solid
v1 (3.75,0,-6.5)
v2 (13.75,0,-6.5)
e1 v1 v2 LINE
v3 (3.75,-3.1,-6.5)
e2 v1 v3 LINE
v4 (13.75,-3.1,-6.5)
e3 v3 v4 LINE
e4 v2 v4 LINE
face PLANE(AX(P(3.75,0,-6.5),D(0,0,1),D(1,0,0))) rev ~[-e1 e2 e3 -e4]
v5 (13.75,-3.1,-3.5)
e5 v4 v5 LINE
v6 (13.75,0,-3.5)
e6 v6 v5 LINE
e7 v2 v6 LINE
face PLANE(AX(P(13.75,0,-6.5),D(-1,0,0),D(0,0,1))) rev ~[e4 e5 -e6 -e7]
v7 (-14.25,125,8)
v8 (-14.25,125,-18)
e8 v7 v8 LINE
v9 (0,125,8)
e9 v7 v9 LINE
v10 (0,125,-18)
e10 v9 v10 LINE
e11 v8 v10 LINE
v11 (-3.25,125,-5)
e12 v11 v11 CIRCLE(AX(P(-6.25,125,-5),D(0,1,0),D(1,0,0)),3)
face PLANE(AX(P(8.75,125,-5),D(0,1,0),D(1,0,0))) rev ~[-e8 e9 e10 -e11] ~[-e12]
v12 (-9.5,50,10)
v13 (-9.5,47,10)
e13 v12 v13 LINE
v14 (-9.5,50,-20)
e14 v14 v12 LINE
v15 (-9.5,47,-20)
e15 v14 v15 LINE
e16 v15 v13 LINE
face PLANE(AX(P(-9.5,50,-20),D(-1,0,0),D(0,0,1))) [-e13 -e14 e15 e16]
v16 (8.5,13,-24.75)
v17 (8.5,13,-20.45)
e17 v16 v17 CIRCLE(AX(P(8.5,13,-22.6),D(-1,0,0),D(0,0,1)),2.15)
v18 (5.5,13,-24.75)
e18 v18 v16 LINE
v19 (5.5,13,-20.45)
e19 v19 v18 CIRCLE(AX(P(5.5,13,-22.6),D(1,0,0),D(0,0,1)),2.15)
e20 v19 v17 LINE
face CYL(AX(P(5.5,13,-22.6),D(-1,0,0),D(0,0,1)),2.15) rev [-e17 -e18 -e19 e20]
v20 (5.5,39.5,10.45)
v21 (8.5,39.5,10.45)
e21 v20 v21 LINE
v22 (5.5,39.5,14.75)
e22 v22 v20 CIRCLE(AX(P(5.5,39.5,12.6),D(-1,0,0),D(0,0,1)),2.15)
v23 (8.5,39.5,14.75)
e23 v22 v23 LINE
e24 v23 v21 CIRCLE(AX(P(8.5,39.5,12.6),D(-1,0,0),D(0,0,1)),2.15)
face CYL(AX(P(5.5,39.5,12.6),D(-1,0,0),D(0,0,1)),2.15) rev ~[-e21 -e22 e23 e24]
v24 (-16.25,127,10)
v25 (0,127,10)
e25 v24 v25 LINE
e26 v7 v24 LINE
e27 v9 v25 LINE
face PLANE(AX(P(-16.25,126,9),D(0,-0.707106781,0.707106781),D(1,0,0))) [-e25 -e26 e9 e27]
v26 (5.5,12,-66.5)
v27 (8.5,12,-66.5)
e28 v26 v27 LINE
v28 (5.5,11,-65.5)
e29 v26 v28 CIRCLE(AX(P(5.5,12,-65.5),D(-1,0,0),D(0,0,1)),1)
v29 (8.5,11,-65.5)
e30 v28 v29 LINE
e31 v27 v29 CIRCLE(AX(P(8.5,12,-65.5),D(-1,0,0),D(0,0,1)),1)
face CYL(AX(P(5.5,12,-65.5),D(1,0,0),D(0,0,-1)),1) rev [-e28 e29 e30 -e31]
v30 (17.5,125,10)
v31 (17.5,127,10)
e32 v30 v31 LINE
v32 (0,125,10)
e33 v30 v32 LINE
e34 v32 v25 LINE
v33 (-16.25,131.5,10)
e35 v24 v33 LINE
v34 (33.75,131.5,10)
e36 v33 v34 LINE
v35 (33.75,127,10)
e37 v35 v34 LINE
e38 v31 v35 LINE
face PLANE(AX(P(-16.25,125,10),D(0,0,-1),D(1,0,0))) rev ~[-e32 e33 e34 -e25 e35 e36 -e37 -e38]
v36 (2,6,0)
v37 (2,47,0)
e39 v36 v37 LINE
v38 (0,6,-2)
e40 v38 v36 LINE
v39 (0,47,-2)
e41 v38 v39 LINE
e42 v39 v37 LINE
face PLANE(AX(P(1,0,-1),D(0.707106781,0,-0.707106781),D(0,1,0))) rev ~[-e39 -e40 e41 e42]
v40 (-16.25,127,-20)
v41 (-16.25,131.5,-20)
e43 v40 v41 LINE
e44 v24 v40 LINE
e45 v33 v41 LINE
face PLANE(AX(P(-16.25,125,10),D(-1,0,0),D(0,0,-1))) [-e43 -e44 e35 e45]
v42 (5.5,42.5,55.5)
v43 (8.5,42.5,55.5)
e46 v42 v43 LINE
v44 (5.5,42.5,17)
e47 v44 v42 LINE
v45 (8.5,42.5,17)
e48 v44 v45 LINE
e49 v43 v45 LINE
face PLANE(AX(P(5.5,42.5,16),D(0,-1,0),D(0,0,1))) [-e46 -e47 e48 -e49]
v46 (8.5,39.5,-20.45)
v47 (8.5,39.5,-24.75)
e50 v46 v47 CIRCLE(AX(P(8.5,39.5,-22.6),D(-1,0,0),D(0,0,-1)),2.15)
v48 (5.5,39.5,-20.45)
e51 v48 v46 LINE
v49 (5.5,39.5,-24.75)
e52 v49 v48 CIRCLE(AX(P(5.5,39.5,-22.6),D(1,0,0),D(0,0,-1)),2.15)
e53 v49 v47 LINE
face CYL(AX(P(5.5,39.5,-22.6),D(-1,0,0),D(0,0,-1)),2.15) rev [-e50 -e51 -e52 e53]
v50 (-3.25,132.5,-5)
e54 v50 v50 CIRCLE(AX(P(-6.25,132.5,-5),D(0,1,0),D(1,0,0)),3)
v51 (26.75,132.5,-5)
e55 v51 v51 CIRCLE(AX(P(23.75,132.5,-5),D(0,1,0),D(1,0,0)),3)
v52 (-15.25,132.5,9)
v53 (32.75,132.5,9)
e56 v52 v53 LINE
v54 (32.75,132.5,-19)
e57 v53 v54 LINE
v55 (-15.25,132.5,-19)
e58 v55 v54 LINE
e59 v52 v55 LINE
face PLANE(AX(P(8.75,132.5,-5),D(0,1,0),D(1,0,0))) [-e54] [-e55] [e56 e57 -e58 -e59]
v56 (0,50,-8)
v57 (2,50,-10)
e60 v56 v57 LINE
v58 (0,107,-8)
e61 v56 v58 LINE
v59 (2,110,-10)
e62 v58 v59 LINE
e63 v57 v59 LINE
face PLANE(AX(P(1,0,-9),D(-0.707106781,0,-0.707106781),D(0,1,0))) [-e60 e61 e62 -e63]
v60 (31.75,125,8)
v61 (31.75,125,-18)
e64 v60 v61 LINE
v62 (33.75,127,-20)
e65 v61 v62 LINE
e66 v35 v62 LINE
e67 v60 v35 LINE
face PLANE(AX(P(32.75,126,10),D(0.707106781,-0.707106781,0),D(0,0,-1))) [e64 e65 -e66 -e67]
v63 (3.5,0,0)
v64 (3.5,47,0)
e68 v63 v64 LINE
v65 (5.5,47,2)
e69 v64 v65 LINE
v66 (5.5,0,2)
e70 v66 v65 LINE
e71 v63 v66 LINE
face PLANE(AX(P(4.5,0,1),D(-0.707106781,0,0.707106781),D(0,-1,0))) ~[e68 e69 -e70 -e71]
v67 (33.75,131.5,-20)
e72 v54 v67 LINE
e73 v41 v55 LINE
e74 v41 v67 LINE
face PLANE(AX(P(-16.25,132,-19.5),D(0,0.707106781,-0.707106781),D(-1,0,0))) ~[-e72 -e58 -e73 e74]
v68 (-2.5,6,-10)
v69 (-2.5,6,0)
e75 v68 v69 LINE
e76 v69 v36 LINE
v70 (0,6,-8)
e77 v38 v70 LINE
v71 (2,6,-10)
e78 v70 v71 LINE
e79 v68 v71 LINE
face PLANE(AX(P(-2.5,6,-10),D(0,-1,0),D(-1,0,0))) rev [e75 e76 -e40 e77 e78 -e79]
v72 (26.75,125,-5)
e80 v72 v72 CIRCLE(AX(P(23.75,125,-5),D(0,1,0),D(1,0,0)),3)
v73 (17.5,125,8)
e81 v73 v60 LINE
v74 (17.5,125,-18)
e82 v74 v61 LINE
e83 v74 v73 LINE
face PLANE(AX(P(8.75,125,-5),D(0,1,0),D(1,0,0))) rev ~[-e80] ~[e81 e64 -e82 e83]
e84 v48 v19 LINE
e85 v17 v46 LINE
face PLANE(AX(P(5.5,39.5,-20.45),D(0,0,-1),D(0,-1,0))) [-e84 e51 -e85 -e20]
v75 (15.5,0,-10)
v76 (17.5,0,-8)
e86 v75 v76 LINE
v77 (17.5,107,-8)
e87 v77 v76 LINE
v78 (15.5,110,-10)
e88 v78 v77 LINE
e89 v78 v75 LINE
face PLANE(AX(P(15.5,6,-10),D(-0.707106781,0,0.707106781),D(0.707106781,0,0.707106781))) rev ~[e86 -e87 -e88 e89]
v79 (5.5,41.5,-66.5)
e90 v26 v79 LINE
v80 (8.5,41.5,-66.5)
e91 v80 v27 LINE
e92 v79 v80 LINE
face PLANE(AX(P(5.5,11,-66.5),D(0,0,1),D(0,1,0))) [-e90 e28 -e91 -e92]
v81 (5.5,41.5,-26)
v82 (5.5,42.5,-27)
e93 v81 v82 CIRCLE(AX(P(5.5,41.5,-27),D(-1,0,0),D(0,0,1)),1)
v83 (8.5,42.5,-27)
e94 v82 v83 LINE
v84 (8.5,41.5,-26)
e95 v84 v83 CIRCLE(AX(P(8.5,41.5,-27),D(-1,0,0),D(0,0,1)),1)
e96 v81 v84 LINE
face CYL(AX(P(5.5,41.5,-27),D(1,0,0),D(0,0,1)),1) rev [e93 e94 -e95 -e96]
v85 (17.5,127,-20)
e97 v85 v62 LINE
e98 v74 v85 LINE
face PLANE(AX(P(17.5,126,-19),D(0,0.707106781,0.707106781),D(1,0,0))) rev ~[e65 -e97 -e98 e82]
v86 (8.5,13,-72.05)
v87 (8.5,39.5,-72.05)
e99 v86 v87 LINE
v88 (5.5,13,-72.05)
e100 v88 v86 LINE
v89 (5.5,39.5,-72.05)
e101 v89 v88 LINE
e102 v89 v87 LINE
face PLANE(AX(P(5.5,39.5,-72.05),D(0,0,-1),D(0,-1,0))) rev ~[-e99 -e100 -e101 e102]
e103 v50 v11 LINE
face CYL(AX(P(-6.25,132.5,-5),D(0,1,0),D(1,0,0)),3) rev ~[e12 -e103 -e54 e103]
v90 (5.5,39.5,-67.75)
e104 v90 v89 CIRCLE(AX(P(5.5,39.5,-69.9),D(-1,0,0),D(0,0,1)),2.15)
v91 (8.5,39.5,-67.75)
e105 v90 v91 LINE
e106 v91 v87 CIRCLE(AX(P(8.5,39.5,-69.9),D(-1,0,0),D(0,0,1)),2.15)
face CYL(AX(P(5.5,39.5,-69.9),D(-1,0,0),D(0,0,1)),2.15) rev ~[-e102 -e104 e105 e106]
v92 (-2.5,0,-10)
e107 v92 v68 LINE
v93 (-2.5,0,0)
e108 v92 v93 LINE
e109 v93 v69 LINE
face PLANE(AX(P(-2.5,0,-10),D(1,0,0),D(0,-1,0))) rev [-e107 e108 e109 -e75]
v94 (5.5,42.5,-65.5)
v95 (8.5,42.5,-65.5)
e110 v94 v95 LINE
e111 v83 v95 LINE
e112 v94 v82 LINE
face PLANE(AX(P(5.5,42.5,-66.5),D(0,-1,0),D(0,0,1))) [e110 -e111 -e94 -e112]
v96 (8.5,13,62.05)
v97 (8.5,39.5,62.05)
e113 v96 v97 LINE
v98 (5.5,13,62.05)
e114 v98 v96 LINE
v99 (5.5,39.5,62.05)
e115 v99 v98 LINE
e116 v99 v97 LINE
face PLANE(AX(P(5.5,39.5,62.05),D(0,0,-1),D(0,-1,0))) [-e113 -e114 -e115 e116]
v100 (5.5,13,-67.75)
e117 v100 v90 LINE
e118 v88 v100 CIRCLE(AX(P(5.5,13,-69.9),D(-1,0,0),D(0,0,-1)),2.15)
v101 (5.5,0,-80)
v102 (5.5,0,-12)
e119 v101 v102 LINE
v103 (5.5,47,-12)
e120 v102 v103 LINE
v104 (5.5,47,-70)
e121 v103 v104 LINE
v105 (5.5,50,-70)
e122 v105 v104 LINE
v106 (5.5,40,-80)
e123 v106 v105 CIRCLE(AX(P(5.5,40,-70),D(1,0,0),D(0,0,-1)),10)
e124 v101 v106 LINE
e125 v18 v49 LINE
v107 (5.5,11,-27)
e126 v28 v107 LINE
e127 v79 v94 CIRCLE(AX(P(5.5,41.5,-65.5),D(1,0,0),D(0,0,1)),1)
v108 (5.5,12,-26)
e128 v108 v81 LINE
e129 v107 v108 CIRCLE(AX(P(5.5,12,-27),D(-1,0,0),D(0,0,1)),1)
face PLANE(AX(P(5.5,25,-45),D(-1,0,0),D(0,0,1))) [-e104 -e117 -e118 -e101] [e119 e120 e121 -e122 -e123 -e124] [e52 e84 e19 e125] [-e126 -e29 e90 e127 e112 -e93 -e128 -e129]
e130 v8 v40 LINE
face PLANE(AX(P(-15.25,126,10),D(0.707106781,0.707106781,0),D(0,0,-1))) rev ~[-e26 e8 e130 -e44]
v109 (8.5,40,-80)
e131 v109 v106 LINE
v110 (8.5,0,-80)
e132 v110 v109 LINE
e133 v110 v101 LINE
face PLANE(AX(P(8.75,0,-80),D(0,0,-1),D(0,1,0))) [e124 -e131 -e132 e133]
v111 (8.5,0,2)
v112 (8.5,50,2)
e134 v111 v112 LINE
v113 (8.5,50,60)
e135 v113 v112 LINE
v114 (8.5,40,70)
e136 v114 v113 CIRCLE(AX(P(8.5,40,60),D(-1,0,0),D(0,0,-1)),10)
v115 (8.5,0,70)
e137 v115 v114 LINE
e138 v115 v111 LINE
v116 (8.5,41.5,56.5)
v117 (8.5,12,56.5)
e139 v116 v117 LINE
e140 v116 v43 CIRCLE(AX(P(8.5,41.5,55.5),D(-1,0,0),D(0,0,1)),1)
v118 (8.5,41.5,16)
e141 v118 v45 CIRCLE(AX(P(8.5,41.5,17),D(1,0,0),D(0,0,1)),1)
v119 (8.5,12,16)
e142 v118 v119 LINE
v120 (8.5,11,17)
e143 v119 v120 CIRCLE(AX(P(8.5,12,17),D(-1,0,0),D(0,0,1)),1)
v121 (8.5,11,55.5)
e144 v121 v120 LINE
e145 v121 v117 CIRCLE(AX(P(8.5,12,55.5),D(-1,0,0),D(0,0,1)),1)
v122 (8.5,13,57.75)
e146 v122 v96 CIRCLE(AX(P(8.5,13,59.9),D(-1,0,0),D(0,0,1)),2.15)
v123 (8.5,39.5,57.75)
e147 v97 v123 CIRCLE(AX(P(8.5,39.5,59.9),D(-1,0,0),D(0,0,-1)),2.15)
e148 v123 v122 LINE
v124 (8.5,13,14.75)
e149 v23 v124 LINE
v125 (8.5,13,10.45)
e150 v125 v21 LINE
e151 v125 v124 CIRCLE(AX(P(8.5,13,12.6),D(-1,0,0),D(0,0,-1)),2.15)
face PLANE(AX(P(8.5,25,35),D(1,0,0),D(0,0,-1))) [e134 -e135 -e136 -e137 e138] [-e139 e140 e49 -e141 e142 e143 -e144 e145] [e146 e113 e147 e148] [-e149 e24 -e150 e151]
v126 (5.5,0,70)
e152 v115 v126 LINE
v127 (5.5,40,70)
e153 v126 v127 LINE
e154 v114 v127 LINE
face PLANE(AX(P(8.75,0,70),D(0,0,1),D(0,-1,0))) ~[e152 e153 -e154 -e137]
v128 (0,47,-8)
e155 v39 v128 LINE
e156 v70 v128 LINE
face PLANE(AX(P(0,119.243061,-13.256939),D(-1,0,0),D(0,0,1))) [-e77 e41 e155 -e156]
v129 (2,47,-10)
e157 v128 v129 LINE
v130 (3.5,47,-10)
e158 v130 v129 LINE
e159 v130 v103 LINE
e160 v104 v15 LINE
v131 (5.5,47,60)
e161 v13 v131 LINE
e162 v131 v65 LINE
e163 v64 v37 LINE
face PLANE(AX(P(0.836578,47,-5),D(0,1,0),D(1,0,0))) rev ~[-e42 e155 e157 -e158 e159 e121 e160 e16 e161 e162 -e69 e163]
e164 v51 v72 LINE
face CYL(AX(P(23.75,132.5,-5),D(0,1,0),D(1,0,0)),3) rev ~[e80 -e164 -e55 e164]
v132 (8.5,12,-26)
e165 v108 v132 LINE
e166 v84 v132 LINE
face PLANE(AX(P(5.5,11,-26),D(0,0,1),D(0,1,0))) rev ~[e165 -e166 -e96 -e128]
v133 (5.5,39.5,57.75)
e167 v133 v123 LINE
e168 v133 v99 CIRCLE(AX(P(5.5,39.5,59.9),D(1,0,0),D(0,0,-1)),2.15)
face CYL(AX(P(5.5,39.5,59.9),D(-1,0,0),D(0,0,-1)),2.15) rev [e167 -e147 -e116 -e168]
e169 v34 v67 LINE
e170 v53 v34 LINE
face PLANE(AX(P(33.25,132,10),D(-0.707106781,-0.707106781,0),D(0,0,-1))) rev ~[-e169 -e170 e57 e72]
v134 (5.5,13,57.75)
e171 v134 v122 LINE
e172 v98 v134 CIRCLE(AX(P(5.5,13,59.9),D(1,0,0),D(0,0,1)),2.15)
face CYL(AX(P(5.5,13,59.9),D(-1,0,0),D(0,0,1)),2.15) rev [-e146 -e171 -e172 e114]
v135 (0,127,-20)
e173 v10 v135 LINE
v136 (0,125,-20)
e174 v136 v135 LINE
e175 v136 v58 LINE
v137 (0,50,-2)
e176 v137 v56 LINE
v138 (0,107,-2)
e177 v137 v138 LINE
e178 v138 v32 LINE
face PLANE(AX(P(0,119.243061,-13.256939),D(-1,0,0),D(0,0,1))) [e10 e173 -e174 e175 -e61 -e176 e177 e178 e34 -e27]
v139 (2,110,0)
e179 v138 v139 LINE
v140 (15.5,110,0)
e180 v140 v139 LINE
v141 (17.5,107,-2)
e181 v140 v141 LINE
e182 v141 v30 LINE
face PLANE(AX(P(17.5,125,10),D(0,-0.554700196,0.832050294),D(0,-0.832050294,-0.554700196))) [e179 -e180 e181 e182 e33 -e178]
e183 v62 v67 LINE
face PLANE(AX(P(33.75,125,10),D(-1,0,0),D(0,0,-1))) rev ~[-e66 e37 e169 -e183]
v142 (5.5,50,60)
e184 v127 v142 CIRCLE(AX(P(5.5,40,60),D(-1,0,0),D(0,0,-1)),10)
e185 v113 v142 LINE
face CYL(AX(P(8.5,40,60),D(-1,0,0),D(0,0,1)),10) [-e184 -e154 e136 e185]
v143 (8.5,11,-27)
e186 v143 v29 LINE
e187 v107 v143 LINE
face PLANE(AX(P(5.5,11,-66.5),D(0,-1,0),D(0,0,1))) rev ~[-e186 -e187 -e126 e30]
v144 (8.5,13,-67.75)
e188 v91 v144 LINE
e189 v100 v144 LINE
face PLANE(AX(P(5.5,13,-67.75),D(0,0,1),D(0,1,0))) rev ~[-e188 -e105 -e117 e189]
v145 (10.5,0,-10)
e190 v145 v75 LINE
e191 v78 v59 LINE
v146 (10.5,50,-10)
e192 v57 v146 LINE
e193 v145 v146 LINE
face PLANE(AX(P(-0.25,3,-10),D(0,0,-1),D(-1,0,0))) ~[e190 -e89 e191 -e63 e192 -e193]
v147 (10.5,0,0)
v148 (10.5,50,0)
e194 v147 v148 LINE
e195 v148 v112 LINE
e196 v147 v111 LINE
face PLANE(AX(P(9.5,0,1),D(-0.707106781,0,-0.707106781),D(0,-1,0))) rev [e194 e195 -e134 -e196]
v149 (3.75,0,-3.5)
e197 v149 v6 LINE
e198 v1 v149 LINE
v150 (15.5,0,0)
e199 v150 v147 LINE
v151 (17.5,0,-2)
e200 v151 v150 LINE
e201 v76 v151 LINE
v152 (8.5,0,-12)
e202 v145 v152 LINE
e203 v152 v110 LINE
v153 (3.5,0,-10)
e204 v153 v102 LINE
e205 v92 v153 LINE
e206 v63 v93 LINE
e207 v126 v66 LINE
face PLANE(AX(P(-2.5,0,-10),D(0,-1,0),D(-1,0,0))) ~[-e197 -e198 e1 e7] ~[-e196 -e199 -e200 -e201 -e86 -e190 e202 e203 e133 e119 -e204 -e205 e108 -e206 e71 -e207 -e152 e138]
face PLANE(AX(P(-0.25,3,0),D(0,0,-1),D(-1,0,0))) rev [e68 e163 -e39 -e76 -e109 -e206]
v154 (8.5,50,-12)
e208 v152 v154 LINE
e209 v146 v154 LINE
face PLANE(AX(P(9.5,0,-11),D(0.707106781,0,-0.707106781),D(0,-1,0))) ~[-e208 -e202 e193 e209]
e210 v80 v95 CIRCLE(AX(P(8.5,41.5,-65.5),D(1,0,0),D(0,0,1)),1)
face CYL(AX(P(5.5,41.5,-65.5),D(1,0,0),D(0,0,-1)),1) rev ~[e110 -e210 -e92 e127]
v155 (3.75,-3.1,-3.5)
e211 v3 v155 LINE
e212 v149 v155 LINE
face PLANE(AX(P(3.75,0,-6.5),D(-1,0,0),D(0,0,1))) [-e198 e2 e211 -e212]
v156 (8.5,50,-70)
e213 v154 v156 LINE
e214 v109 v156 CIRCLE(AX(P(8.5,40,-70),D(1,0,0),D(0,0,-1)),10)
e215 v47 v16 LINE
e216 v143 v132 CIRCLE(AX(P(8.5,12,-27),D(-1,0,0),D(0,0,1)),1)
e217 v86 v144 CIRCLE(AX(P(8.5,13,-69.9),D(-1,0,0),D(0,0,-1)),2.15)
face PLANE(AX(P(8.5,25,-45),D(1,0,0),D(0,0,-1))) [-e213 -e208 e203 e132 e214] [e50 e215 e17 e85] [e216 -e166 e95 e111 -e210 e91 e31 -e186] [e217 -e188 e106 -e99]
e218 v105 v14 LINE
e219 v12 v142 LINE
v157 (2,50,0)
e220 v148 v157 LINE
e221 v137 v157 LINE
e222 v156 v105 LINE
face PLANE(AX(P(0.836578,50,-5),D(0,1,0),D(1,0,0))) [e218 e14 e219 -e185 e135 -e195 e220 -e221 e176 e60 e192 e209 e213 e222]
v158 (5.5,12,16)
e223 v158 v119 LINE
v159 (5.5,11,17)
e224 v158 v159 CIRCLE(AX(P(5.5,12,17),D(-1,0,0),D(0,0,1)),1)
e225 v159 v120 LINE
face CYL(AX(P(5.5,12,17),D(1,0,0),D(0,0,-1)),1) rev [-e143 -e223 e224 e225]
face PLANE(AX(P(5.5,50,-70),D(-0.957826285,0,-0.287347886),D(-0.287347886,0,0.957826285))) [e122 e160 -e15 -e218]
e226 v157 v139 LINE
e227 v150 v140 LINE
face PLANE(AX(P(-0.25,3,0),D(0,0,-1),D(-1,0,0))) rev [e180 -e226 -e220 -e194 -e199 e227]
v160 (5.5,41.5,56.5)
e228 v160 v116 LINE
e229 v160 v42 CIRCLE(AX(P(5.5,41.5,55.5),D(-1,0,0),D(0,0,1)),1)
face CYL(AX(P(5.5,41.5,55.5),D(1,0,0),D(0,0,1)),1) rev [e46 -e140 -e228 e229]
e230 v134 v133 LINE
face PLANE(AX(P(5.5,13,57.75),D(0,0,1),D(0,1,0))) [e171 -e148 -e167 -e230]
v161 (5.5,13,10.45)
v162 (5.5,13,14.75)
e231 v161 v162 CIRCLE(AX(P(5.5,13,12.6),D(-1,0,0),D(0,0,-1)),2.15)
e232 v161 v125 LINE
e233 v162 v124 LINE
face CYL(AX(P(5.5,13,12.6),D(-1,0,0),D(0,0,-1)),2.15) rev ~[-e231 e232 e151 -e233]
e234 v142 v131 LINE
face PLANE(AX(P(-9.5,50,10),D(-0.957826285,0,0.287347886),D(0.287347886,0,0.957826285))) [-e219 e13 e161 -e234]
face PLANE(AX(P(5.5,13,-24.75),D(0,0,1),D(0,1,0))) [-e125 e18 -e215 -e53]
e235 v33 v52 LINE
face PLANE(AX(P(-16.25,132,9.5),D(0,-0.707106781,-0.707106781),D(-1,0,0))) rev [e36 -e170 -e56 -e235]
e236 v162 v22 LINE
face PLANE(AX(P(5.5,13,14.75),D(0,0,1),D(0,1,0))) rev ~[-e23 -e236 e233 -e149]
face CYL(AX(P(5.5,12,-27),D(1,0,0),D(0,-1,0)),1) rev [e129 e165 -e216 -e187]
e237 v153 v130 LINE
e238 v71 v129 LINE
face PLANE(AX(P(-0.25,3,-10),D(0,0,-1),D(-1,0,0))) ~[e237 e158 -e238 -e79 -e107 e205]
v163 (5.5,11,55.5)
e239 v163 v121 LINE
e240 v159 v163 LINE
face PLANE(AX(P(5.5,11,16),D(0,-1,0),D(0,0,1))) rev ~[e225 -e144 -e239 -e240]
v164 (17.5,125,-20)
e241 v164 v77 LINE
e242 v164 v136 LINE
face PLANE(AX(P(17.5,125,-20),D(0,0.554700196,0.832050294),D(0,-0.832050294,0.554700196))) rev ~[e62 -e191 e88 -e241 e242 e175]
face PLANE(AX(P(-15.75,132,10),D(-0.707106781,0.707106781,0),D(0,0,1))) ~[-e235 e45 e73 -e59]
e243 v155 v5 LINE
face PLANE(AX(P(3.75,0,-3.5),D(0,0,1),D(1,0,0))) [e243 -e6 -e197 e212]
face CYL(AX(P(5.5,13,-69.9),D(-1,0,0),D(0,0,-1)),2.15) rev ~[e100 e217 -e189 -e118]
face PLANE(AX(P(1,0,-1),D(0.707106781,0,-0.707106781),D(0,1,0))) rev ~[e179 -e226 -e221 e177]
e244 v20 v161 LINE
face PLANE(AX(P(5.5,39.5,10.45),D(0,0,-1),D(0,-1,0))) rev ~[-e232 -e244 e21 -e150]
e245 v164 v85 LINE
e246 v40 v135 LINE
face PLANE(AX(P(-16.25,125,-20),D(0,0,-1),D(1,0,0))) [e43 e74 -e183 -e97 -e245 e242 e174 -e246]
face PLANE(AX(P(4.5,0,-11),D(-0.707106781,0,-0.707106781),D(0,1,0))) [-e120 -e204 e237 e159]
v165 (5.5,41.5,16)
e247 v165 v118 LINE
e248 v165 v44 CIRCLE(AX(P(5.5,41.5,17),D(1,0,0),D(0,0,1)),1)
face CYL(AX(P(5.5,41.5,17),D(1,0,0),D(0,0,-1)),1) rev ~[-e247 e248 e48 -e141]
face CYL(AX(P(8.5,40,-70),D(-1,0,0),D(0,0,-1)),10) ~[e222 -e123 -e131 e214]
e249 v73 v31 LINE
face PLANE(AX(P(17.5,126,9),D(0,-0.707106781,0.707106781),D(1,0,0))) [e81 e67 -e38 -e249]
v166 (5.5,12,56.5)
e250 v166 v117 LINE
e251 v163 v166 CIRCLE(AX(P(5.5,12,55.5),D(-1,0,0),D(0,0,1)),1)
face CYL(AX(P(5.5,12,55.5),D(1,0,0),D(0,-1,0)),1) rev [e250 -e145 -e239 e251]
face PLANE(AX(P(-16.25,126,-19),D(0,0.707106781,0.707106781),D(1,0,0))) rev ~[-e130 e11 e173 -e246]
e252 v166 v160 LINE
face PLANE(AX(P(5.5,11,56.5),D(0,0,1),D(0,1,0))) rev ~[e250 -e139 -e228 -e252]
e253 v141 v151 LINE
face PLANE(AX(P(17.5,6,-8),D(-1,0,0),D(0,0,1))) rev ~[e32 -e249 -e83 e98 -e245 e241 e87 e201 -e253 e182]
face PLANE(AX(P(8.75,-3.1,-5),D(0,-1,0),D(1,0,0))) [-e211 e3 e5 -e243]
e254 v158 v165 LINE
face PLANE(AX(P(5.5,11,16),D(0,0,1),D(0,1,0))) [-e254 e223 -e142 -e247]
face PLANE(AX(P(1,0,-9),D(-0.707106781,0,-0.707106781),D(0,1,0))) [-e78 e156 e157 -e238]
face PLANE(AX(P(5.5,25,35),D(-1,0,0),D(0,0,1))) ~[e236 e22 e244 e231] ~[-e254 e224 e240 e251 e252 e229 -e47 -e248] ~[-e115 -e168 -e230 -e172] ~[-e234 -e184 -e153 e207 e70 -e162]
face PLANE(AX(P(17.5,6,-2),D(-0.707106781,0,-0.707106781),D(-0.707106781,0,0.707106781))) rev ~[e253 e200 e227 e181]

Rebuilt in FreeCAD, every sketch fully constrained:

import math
import FreeCAD as App
import Part
import Sketcher

V = App.Vector


def edges_at(feature, points):
    """Names of the edges that pass closest to the given points."""
    edges = feature.Shape.Edges
    near = lambda p: min(range(len(edges)), key=lambda i: edges[i].distToShape(Part.Vertex(*p))[0])
    return sorted({f"Edge{near(p) + 1}" for p in points})

doc = App.newDocument("Part")
body = doc.addObject("PartDesign::Body", "Body")

sketch1 = body.newObject("Sketcher::SketchObject", "Sketch")
sketch1.AttachmentSupport = (doc.getObject("XZ_Plane"), [""])
sketch1.MapMode = "FlatFace"
sketch1.addGeometry([
    Part.LineSegment(V(0, -10, 0), V(0, 0, 0)),
    Part.LineSegment(V(0, 0, 0), V(17.5, 0, 0)),
    Part.LineSegment(V(17.5, 0, 0), V(17.5, -10, 0)),
    Part.LineSegment(V(17.5, -10, 0), V(0, -10, 0)),
], False)
sketch1.addConstraint([
    Sketcher.Constraint("Coincident", 0, 2, 1, 1),
    Sketcher.Constraint("Coincident", 1, 2, 2, 1),
    Sketcher.Constraint("Coincident", 2, 2, 3, 1),
    Sketcher.Constraint("Coincident", 3, 2, 0, 1),
    Sketcher.Constraint("Vertical", 0),
    Sketcher.Constraint("Horizontal", 1),
    Sketcher.Constraint("Vertical", 2),
    Sketcher.Constraint("Horizontal", 3),
    Sketcher.Constraint("Coincident", 0, 2, -1, 1),
    Sketcher.Constraint("DistanceY", 0, 1, 0, 2, 10.0),
    Sketcher.Constraint("DistanceX", 1, 1, 1, 2, 17.5),
])
pad1 = body.newObject("PartDesign::Pad", "Pad")
pad1.Profile = sketch1
pad1.Length = 125
pad1.Reversed = True

sketch2 = body.newObject("Sketcher::SketchObject", "Sketch001")
sketch2.AttachmentSupport = (doc.getObject("XZ_Plane"), [""])
sketch2.MapMode = "FlatFace"
sketch2.AttachmentOffset = App.Placement(V(0, 0, -125), App.Rotation())
sketch2.addGeometry([
    Part.LineSegment(V(-16.25, -20, 0), V(-16.25, 10, 0)),
    Part.LineSegment(V(-16.25, 10, 0), V(33.75, 10, 0)),
    Part.LineSegment(V(33.75, 10, 0), V(33.75, -20, 0)),
    Part.LineSegment(V(33.75, -20, 0), V(-16.25, -20, 0)),
], False)
sketch2.addConstraint([
    Sketcher.Constraint("Coincident", 0, 2, 1, 1),
    Sketcher.Constraint("Coincident", 1, 2, 2, 1),
    Sketcher.Constraint("Coincident", 2, 2, 3, 1),
    Sketcher.Constraint("Coincident", 3, 2, 0, 1),
    Sketcher.Constraint("Vertical", 0),
    Sketcher.Constraint("Horizontal", 1),
    Sketcher.Constraint("Vertical", 2),
    Sketcher.Constraint("Horizontal", 3),
    Sketcher.Constraint("DistanceX", 1, 1, 1, 2, 50.0),
    Sketcher.Constraint("DistanceY", 0, 1, 0, 2, 30.0),
    Sketcher.Constraint("DistanceY", -1, 1, 0, 2, 10.0),
    Sketcher.Constraint("DistanceX", 0, 2, -1, 1, 16.25),
])
pad2 = body.newObject("PartDesign::Pad", "Pad001")
pad2.Profile = sketch2
pad2.Length = 7.5
pad2.Reversed = True
doc.recompute()

chamfer = body.newObject("PartDesign::Chamfer", "Chamfer")
chamfer.Base = (pad2, edges_at(pad2, [
    (33.75, 132.5, -5),
    (8.75, 132.5, -20),
    (-16.25, 132.5, -5),
    (8.75, 132.5, 10),
]))
chamfer.Size = 1

sketch3 = body.newObject("Sketcher::SketchObject", "Sketch002")
sketch3.AttachmentSupport = (doc.getObject("XZ_Plane"), [""])
sketch3.MapMode = "FlatFace"
sketch3.AttachmentOffset = App.Placement(V(0, 0, -132.5), App.Rotation())
sketch3.addGeometry([
    Part.Circle(V(23.75, -5, 0), V(0, 0, 1), 3),
    Part.Circle(V(-6.25, -5, 0), V(0, 0, 1), 3),
], False)
sketch3.addConstraint([
    Sketcher.Constraint("Equal", 0, 1),
    Sketcher.Constraint("Horizontal", 0, 3, 1, 3),
    Sketcher.Constraint("Diameter", 0, 6.0),
    Sketcher.Constraint("DistanceY", 0, 3, -1, 1, 5.0),
    Sketcher.Constraint("DistanceX", 1, 3, 0, 3, 30.0),
    Sketcher.Constraint("DistanceX", -1, 1, 0, 3, 23.75),
])
pocket1 = body.newObject("PartDesign::Pocket", "Pocket")
pocket1.Profile = sketch3
pocket1.Length = 10
pocket1.Reversed = True

sketch4 = body.newObject("Sketcher::SketchObject", "Sketch003")
sketch4.AttachmentSupport = (doc.getObject("YZ_Plane"), [""])
sketch4.MapMode = "FlatFace"
sketch4.AttachmentOffset = App.Placement(V(0, 0, 17.5), App.Rotation())
sketch4.addGeometry([
    Part.LineSegment(V(125, -20, 0), V(125, -10, 0)),
    Part.LineSegment(V(125, -10, 0), V(110, -10, 0)),
    Part.LineSegment(V(110, -10, 0), V(125, -20, 0)),
    Part.LineSegment(V(125, 0, 0), V(125, 10, 0)),
    Part.LineSegment(V(125, 10, 0), V(110, 0, 0)),
    Part.LineSegment(V(110, 0, 0), V(125, 0, 0)),
], False)
sketch4.addConstraint([
    Sketcher.Constraint("Coincident", 0, 2, 1, 1),
    Sketcher.Constraint("Coincident", 1, 2, 2, 1),
    Sketcher.Constraint("Coincident", 2, 2, 0, 1),
    Sketcher.Constraint("Coincident", 3, 2, 4, 1),
    Sketcher.Constraint("Coincident", 4, 2, 5, 1),
    Sketcher.Constraint("Coincident", 5, 2, 3, 1),
    Sketcher.Constraint("Vertical", 0),
    Sketcher.Constraint("Horizontal", 1),
    Sketcher.Constraint("Vertical", 3),
    Sketcher.Constraint("Horizontal", 5),
    Sketcher.Constraint("Symmetric", 0, 2, 3, 2, -1),
    Sketcher.Constraint("PointOnObject", 4, 2, -1),
    Sketcher.Constraint("Vertical", 1, 2, 4, 2),
    Sketcher.Constraint("Equal", 0, 3),
    Sketcher.Constraint("DistanceX", 1, 2, 1, 1, 15.0),
    Sketcher.Constraint("DistanceY", 0, 1, 0, 2, 10.0),
    Sketcher.Constraint("DistanceX", -1, 1, 0, 2, 125.0),
])
pad3 = body.newObject("PartDesign::Pad", "Pad002")
pad3.Profile = sketch4
pad3.Length = 17.5
pad3.Reversed = True
doc.recompute()

chamfer2 = body.newObject("PartDesign::Chamfer", "Chamfer001")
chamfer2.Base = (pad3, edges_at(pad3, [
    (-8.125, 125, -20),
    (33.75, 125, -5),
    (-16.25, 125, -5),
    (-8.125, 125, 10),
    (25.625, 125, -20),
    (25.625, 125, 10),
]))
chamfer2.Size = 2
doc.recompute()

chamfer3 = body.newObject("PartDesign::Chamfer", "Chamfer002")
chamfer3.Base = (chamfer2, edges_at(chamfer2, [
    (0, 55, -10),
    (17.5, 55, -10),
    (17.5, 55, 0),
    (0, 55, 0),
]))
chamfer3.Size = 2

sketch5 = body.newObject("Sketcher::SketchObject", "Sketch004")
sketch5.AttachmentSupport = (doc.getObject("XZ_Plane"), [""])
sketch5.MapMode = "FlatFace"
sketch5.addGeometry([
    Part.LineSegment(V(3.75, -3.5, 0), V(3.75, -6.5, 0)),
    Part.LineSegment(V(3.75, -6.5, 0), V(13.75, -6.5, 0)),
    Part.LineSegment(V(13.75, -6.5, 0), V(13.75, -3.5, 0)),
    Part.LineSegment(V(13.75, -3.5, 0), V(3.75, -3.5, 0)),
], False)
sketch5.addConstraint([
    Sketcher.Constraint("Coincident", 0, 2, 1, 1),
    Sketcher.Constraint("Coincident", 1, 2, 2, 1),
    Sketcher.Constraint("Coincident", 2, 2, 3, 1),
    Sketcher.Constraint("Coincident", 3, 2, 0, 1),
    Sketcher.Constraint("Vertical", 0),
    Sketcher.Constraint("Horizontal", 1),
    Sketcher.Constraint("Vertical", 2),
    Sketcher.Constraint("Horizontal", 3),
    Sketcher.Constraint("DistanceX", 1, 1, 1, 2, 10.0),
    Sketcher.Constraint("DistanceY", 0, 2, 0, 1, 3.0),
    Sketcher.Constraint("DistanceY", 0, 2, -1, 1, 6.5),
    Sketcher.Constraint("DistanceX", -1, 1, 0, 2, 3.75),
])
pad4 = body.newObject("PartDesign::Pad", "Pad003")
pad4.Profile = sketch5
pad4.Length = 3.1

sketch6 = body.newObject("Sketcher::SketchObject", "Sketch005")
sketch6.AttachmentSupport = (doc.getObject("YZ_Plane"), [""])
sketch6.MapMode = "FlatFace"
sketch6.AttachmentOffset = App.Placement(V(0, 0, 8.75), App.Rotation())
sketch6.addGeometry([
    Part.LineSegment(V(50, -80, 0), V(0, -80, 0)),
    Part.LineSegment(V(0, -80, 0), V(0, -10, 0)),
    Part.LineSegment(V(0, -10, 0), V(50, -10, 0)),
    Part.LineSegment(V(50, -10, 0), V(50, -80, 0)),
], False)
sketch6.addConstraint([
    Sketcher.Constraint("Coincident", 0, 2, 1, 1),
    Sketcher.Constraint("Coincident", 1, 2, 2, 1),
    Sketcher.Constraint("Coincident", 2, 2, 3, 1),
    Sketcher.Constraint("Coincident", 3, 2, 0, 1),
    Sketcher.Constraint("Horizontal", 0),
    Sketcher.Constraint("Vertical", 1),
    Sketcher.Constraint("Horizontal", 2),
    Sketcher.Constraint("Vertical", 3),
    Sketcher.Constraint("PointOnObject", 0, 2, -2),
    Sketcher.Constraint("DistanceX", 0, 2, 0, 1, 50.0),
    Sketcher.Constraint("DistanceY", 1, 1, 1, 2, 70.0),
    Sketcher.Constraint("DistanceY", 0, 2, -1, 1, 80.0),
])
pad5 = body.newObject("PartDesign::Pad", "Pad004")
pad5.Profile = sketch6
pad5.Length = 3.25
pad5.Reversed = True
doc.recompute()

datumplane = body.newObject("PartDesign::Plane", "DatumPlane")
datumplane.AttachmentSupport = (doc.getObject("XY_Plane"), [""])
datumplane.MapMode = "FlatFace"
datumplane.AttachmentOffset = App.Placement(V(0, 0, -5), App.Rotation())
mirrored = body.newObject("PartDesign::Mirrored", "Mirrored")
mirrored.Originals = [pad5]
mirrored.MirrorPlane = (datumplane, [""])
body.Tip = mirrored

sketch7 = body.newObject("Sketcher::SketchObject", "Sketch006")
sketch7.AttachmentSupport = (doc.getObject("XY_Plane"), [""])
sketch7.MapMode = "FlatFace"
sketch7.AttachmentOffset = App.Placement(V(0, 0, -10), App.Rotation())
sketch7.addGeometry([
    Part.LineSegment(V(20, 6, 0), V(20, 0, 0)),
    Part.LineSegment(V(20, 0, 0), V(15.5, 0, 0)),
    Part.LineSegment(V(15.5, 0, 0), V(15.5, 6, 0)),
    Part.LineSegment(V(15.5, 6, 0), V(20, 6, 0)),
], False)
sketch7.addConstraint([
    Sketcher.Constraint("Coincident", 0, 2, 1, 1),
    Sketcher.Constraint("Coincident", 1, 2, 2, 1),
    Sketcher.Constraint("Coincident", 2, 2, 3, 1),
    Sketcher.Constraint("Coincident", 3, 2, 0, 1),
    Sketcher.Constraint("Vertical", 0),
    Sketcher.Constraint("Horizontal", 1),
    Sketcher.Constraint("Vertical", 2),
    Sketcher.Constraint("Horizontal", 3),
    Sketcher.Constraint("PointOnObject", 0, 2, -1),
    Sketcher.Constraint("DistanceY", 0, 2, 0, 1, 6.0),
    Sketcher.Constraint("DistanceX", 1, 2, 1, 1, 4.5),
    Sketcher.Constraint("DistanceX", -1, 1, 0, 2, 20.0),
])
pad6 = body.newObject("PartDesign::Pad", "Pad005")
pad6.Profile = sketch7
pad6.Length = 10
doc.recompute()

datumplane2 = body.newObject("PartDesign::Plane", "DatumPlane001")
datumplane2.AttachmentSupport = (doc.getObject("YZ_Plane"), [""])
datumplane2.MapMode = "FlatFace"
datumplane2.AttachmentOffset = App.Placement(V(0, 0, 8.75), App.Rotation())
mirrored2 = body.newObject("PartDesign::Mirrored", "Mirrored001")
mirrored2.Originals = [pad6]
mirrored2.MirrorPlane = (datumplane2, [""])
body.Tip = mirrored2

sketch8 = body.newObject("Sketcher::SketchObject", "Sketch007")
sketch8.AttachmentSupport = (doc.getObject("XZ_Plane"), [""])
sketch8.MapMode = "FlatFace"
sketch8.AttachmentOffset = App.Placement(V(0, 0, -6), App.Rotation())
sketch8.addGeometry([
    Part.LineSegment(V(17.5, -8, 0), V(17.5, -2, 0)),
    Part.LineSegment(V(17.5, -2, 0), V(15.5, 0, 0)),
    Part.LineSegment(V(15.5, 0, 0), V(20, 0, 0)),
    Part.LineSegment(V(20, 0, 0), V(20, -10, 0)),
    Part.LineSegment(V(20, -10, 0), V(15.5, -10, 0)),
    Part.LineSegment(V(15.5, -10, 0), V(17.5, -8, 0)),
], False)
sketch8.addConstraint([
    Sketcher.Constraint("Coincident", 0, 2, 1, 1),
    Sketcher.Constraint("Coincident", 1, 2, 2, 1),
    Sketcher.Constraint("Coincident", 2, 2, 3, 1),
    Sketcher.Constraint("Coincident", 3, 2, 4, 1),
    Sketcher.Constraint("Coincident", 4, 2, 5, 1),
    Sketcher.Constraint("Coincident", 5, 2, 0, 1),
    Sketcher.Constraint("Vertical", 0),
    Sketcher.Constraint("Horizontal", 2),
    Sketcher.Constraint("Vertical", 3),
    Sketcher.Constraint("Horizontal", 4),
    Sketcher.Constraint("PointOnObject", 1, 2, -1),
    Sketcher.Constraint("Perpendicular", 1, 5),
    Sketcher.Constraint("Vertical", 1, 2, 4, 2),
    Sketcher.Constraint("Equal", 1, 5),
    Sketcher.Constraint("DistanceY", 0, 1, 0, 2, 6.0),
    Sketcher.Constraint("DistanceY", 3, 2, 3, 1, 10.0),
    Sketcher.Constraint("DistanceX", 2, 1, 2, 2, 4.5),
    Sketcher.Constraint("DistanceX", -1, 1, 2, 2, 20.0),
])
pocket2 = body.newObject("PartDesign::Pocket", "Pocket001")
pocket2.Profile = sketch8
pocket2.Length = 10
pocket2.Reversed = True

sketch9 = body.newObject("Sketcher::SketchObject", "Sketch008")
sketch9.AttachmentSupport = (doc.getObject("YZ_Plane"), [""])
sketch9.MapMode = "FlatFace"
sketch9.AttachmentOffset = App.Placement(V(0, 0, 8.75), App.Rotation())
sketch9.addGeometry([
    Part.LineSegment(V(50, 70, 0), V(0, 70, 0)),
    Part.LineSegment(V(0, 70, 0), V(0, 0, 0)),
    Part.LineSegment(V(0, 0, 0), V(50, 0, 0)),
    Part.LineSegment(V(50, 0, 0), V(50, 70, 0)),
    Part.LineSegment(V(50, -10, 0), V(0, -10, 0)),
    Part.LineSegment(V(0, -10, 0), V(0, -80, 0)),
    Part.LineSegment(V(0, -80, 0), V(50, -80, 0)),
    Part.LineSegment(V(50, -80, 0), V(50, -10, 0)),
], False)
sketch9.addConstraint([
    Sketcher.Constraint("Coincident", 0, 2, 1, 1),
    Sketcher.Constraint("Coincident", 1, 2, 2, 1),
    Sketcher.Constraint("Coincident", 2, 2, 3, 1),
    Sketcher.Constraint("Coincident", 3, 2, 0, 1),
    Sketcher.Constraint("Coincident", 4, 2, 5, 1),
    Sketcher.Constraint("Coincident", 5, 2, 6, 1),
    Sketcher.Constraint("Coincident", 6, 2, 7, 1),
    Sketcher.Constraint("Coincident", 7, 2, 4, 1),
    Sketcher.Constraint("Horizontal", 0),
    Sketcher.Constraint("Vertical", 1),
    Sketcher.Constraint("Horizontal", 2),
    Sketcher.Constraint("Vertical", 3),
    Sketcher.Constraint("Horizontal", 4),
    Sketcher.Constraint("Vertical", 5),
    Sketcher.Constraint("Horizontal", 6),
    Sketcher.Constraint("Vertical", 7),
    Sketcher.Constraint("Coincident", 1, 2, -1, 1),
    Sketcher.Constraint("PointOnObject", 4, 2, -2),
    Sketcher.Constraint("Vertical", 3, 2, 6, 2),
    Sketcher.Constraint("Equal", 3, 5),
    Sketcher.Constraint("DistanceX", 0, 2, 0, 1, 50.0),
    Sketcher.Constraint("DistanceY", 1, 2, 1, 1, 70.0),
    Sketcher.Constraint("DistanceY", 4, 2, -1, 1, 10.0),
])
pocket3 = body.newObject("PartDesign::Pocket", "Pocket002")
pocket3.Profile = sketch9
pocket3.Length = 0.25

sketch10 = body.newObject("Sketcher::SketchObject", "Sketch009")
sketch10.AttachmentSupport = (doc.getObject("YZ_Plane"), [""])
sketch10.MapMode = "FlatFace"
sketch10.AttachmentOffset = App.Placement(V(0, 0, 5.5), App.Rotation())
sketch10.addGeometry([
    Part.LineSegment(V(42.5, -66.5, 0), V(11, -66.5, 0)),
    Part.LineSegment(V(11, -66.5, 0), V(11, -26, 0)),
    Part.LineSegment(V(11, -26, 0), V(42.5, -26, 0)),
    Part.LineSegment(V(42.5, -26, 0), V(42.5, -66.5, 0)),
    Part.LineSegment(V(42.5, 16, 0), V(11, 16, 0)),
    Part.LineSegment(V(11, 16, 0), V(11, 56.5, 0)),
    Part.LineSegment(V(11, 56.5, 0), V(42.5, 56.5, 0)),
    Part.LineSegment(V(42.5, 56.5, 0), V(42.5, 16, 0)),
], False)
sketch10.addConstraint([
    Sketcher.Constraint("Coincident", 0, 2, 1, 1),
    Sketcher.Constraint("Coincident", 1, 2, 2, 1),
    Sketcher.Constraint("Coincident", 2, 2, 3, 1),
    Sketcher.Constraint("Coincident", 3, 2, 0, 1),
    Sketcher.Constraint("Coincident", 4, 2, 5, 1),
    Sketcher.Constraint("Coincident", 5, 2, 6, 1),
    Sketcher.Constraint("Coincident", 6, 2, 7, 1),
    Sketcher.Constraint("Coincident", 7, 2, 4, 1),
    Sketcher.Constraint("Horizontal", 0),
    Sketcher.Constraint("Vertical", 1),
    Sketcher.Constraint("Horizontal", 2),
    Sketcher.Constraint("Vertical", 3),
    Sketcher.Constraint("Horizontal", 4),
    Sketcher.Constraint("Vertical", 5),
    Sketcher.Constraint("Horizontal", 6),
    Sketcher.Constraint("Vertical", 7),
    Sketcher.Constraint("Vertical", 1, 2, 4, 2),
    Sketcher.Constraint("Vertical", 3, 2, 6, 2),
    Sketcher.Constraint("Equal", 3, 5),
    Sketcher.Constraint("DistanceX", 0, 2, 0, 1, 31.5),
    Sketcher.Constraint("DistanceY", 1, 1, 1, 2, 40.5),
    Sketcher.Constraint("DistanceX", -1, 1, 0, 2, 11.0),
    Sketcher.Constraint("DistanceY", 1, 2, -1, 1, 26.0),
    Sketcher.Constraint("DistanceY", -1, 1, 4, 2, 16.0),
])
pocket4 = body.newObject("PartDesign::Pocket", "Pocket003")
pocket4.Profile = sketch10
pocket4.Length = 39.25
pocket4.Reversed = True
doc.recompute()

chamfer4 = body.newObject("PartDesign::Chamfer", "Chamfer003")
chamfer4.Base = (pocket4, edges_at(pocket4, [
    (5.5, 25, -10),
    (5.5, 25, 0),
    (8.5, 25, 0),
    (8.5, 25, -10),
]))
chamfer4.Size = 2
doc.recompute()

fillet = body.newObject("PartDesign::Fillet", "Fillet")
fillet.Base = (chamfer4, edges_at(chamfer4, [
    (7, 42.5, -26),
    (7, 11, -26),
    (7, 11, -66.5),
    (7, 42.5, -66.5),
    (7, 11, 16),
    (7, 42.5, 16),
    (7, 42.5, 56.5),
    (7, 11, 56.5),
]))
fillet.Radius = 1
doc.recompute()

fillet2 = body.newObject("PartDesign::Fillet", "Fillet001")
fillet2.Base = (fillet, edges_at(fillet, [(7, 50, -80), (7, 50, 70)]))
fillet2.Radius = 10

sketch11 = body.newObject("Sketcher::SketchObject", "Sketch010")
sketch11.AttachmentSupport = (doc.getObject("XZ_Plane"), [""])
sketch11.MapMode = "FlatFace"
sketch11.AttachmentOffset = App.Placement(V(0, 0, -50), App.Rotation())
sketch11.addGeometry([
    Part.LineSegment(V(5.5, -70, 0), V(-9.5, -20, 0)),
    Part.LineSegment(V(-9.5, -20, 0), V(-9.5, 10, 0)),
    Part.LineSegment(V(-9.5, 10, 0), V(5.5, 60, 0)),
    Part.LineSegment(V(5.5, 60, 0), V(5.5, -70, 0)),
], False)
sketch11.addConstraint([
    Sketcher.Constraint("Coincident", 0, 2, 1, 1),
    Sketcher.Constraint("Coincident", 1, 2, 2, 1),
    Sketcher.Constraint("Coincident", 2, 2, 3, 1),
    Sketcher.Constraint("Coincident", 3, 2, 0, 1),
    Sketcher.Constraint("Vertical", 1),
    Sketcher.Constraint("Vertical", 3),
    Sketcher.Constraint("Equal", 0, 2),
    Sketcher.Constraint("DistanceY", 1, 1, 1, 2, 30.0),
    Sketcher.Constraint("DistanceY", 3, 2, 3, 1, 130.0),
    Sketcher.Constraint("DistanceY", 0, 2, -1, 1, 20.0),
    Sketcher.Constraint("DistanceX", 1, 2, 2, 2, 15.0),
    Sketcher.Constraint("DistanceX", 0, 2, -1, 1, 9.5),
])
pad7 = body.newObject("PartDesign::Pad", "Pad006")
pad7.Profile = sketch11
pad7.Length = 3

sketch12 = body.newObject("Sketcher::SketchObject", "Sketch011")
sketch12.AttachmentSupport = (doc.getObject("YZ_Plane"), [""])
sketch12.MapMode = "FlatFace"
sketch12.AttachmentOffset = App.Placement(V(0, 0, 5.5), App.Rotation())
sketch12.addGeometry([
    Part.LineSegment(V(13, 62.05, 0), V(39.5, 62.05, 0)),
    Part.ArcOfCircle(Part.Circle(V(39.5, 59.9, 0), V(0, 0, 1), 2.15), math.radians(-90), math.radians(90)),
    Part.LineSegment(V(39.5, 57.75, 0), V(13, 57.75, 0)),
    Part.ArcOfCircle(Part.Circle(V(13, 59.9, 0), V(0, 0, 1), 2.15), math.radians(90), math.radians(270)),
    Part.LineSegment(V(39.5, 10.45, 0), V(13, 10.45, 0)),
    Part.ArcOfCircle(Part.Circle(V(13, 12.6, 0), V(0, 0, 1), 2.15), math.radians(90), math.radians(270)),
    Part.LineSegment(V(13, 14.75, 0), V(39.5, 14.75, 0)),
    Part.ArcOfCircle(Part.Circle(V(39.5, 12.6, 0), V(0, 0, 1), 2.15), math.radians(-90), math.radians(90)),
    Part.LineSegment(V(13, -20.45, 0), V(39.5, -20.45, 0)),
    Part.ArcOfCircle(Part.Circle(V(39.5, -22.6, 0), V(0, 0, 1), 2.15), math.radians(-90), math.radians(90)),
    Part.LineSegment(V(39.5, -24.75, 0), V(13, -24.75, 0)),
    Part.ArcOfCircle(Part.Circle(V(13, -22.6, 0), V(0, 0, 1), 2.15), math.radians(90), math.radians(270)),
    Part.LineSegment(V(39.5, -72.05, 0), V(13, -72.05, 0)),
    Part.ArcOfCircle(Part.Circle(V(13, -69.9, 0), V(0, 0, 1), 2.15), math.radians(90), math.radians(270)),
    Part.LineSegment(V(13, -67.75, 0), V(39.5, -67.75, 0)),
    Part.ArcOfCircle(Part.Circle(V(39.5, -69.9, 0), V(0, 0, 1), 2.15), math.radians(-90), math.radians(90)),
], False)
sketch12.addConstraint([
    Sketcher.Constraint("Tangent", 0, 2, 1, 2),
    Sketcher.Constraint("Tangent", 1, 1, 2, 1),
    Sketcher.Constraint("Tangent", 2, 2, 3, 2),
    Sketcher.Constraint("Tangent", 3, 1, 0, 1),
    Sketcher.Constraint("Tangent", 4, 2, 5, 2),
    Sketcher.Constraint("Tangent", 5, 1, 6, 1),
    Sketcher.Constraint("Tangent", 6, 2, 7, 2),
    Sketcher.Constraint("Tangent", 7, 1, 4, 1),
    Sketcher.Constraint("Tangent", 8, 2, 9, 2),
    Sketcher.Constraint("Tangent", 9, 1, 10, 1),
    Sketcher.Constraint("Tangent", 10, 2, 11, 2),
    Sketcher.Constraint("Tangent", 11, 1, 8, 1),
    Sketcher.Constraint("Tangent", 12, 2, 13, 2),
    Sketcher.Constraint("Tangent", 13, 1, 14, 1),
    Sketcher.Constraint("Tangent", 14, 2, 15, 2),
    Sketcher.Constraint("Tangent", 15, 1, 12, 1),
    Sketcher.Constraint("Horizontal", 0),
    Sketcher.Constraint("Horizontal", 2),
    Sketcher.Constraint("Horizontal", 4),
    Sketcher.Constraint("Horizontal", 6),
    Sketcher.Constraint("Horizontal", 8),
    Sketcher.Constraint("Horizontal", 10),
    Sketcher.Constraint("Horizontal", 12),
    Sketcher.Constraint("Horizontal", 14),
    Sketcher.Constraint("Equal", 3, 5),
    Sketcher.Constraint("Equal", 7, 9),
    Sketcher.Constraint("Equal", 11, 13),
    Sketcher.Constraint("Vertical", 3, 3, 5, 3),
    Sketcher.Constraint("Vertical", 1, 3, 7, 3),
    Sketcher.Constraint("Vertical", 7, 3, 9, 3),
    Sketcher.Constraint("Vertical", 5, 3, 11, 3),
    Sketcher.Constraint("Vertical", 11, 3, 13, 3),
    Sketcher.Constraint("Vertical", 9, 3, 15, 3),
    Sketcher.Constraint("Radius", 1, 2.15),
    Sketcher.Constraint("DistanceX", 0, 1, 0, 2, 26.5),
    Sketcher.Constraint("DistanceX", -1, 1, 3, 3, 13.0),
    Sketcher.Constraint("DistanceY", 5, 1, 2, 2, 43.0),
    Sketcher.Constraint("DistanceY", 13, 1, 10, 2, 43.0),
    Sketcher.Constraint("DistanceY", -1, 1, 1, 3, 59.9),
    Sketcher.Constraint("DistanceY", 9, 3, -1, 1, 22.6),
])
pocket5 = body.newObject("PartDesign::Pocket", "Pocket004")
pocket5.Profile = sketch12
pocket5.Length = 48
pocket5.Reversed = True

doc.recompute()
